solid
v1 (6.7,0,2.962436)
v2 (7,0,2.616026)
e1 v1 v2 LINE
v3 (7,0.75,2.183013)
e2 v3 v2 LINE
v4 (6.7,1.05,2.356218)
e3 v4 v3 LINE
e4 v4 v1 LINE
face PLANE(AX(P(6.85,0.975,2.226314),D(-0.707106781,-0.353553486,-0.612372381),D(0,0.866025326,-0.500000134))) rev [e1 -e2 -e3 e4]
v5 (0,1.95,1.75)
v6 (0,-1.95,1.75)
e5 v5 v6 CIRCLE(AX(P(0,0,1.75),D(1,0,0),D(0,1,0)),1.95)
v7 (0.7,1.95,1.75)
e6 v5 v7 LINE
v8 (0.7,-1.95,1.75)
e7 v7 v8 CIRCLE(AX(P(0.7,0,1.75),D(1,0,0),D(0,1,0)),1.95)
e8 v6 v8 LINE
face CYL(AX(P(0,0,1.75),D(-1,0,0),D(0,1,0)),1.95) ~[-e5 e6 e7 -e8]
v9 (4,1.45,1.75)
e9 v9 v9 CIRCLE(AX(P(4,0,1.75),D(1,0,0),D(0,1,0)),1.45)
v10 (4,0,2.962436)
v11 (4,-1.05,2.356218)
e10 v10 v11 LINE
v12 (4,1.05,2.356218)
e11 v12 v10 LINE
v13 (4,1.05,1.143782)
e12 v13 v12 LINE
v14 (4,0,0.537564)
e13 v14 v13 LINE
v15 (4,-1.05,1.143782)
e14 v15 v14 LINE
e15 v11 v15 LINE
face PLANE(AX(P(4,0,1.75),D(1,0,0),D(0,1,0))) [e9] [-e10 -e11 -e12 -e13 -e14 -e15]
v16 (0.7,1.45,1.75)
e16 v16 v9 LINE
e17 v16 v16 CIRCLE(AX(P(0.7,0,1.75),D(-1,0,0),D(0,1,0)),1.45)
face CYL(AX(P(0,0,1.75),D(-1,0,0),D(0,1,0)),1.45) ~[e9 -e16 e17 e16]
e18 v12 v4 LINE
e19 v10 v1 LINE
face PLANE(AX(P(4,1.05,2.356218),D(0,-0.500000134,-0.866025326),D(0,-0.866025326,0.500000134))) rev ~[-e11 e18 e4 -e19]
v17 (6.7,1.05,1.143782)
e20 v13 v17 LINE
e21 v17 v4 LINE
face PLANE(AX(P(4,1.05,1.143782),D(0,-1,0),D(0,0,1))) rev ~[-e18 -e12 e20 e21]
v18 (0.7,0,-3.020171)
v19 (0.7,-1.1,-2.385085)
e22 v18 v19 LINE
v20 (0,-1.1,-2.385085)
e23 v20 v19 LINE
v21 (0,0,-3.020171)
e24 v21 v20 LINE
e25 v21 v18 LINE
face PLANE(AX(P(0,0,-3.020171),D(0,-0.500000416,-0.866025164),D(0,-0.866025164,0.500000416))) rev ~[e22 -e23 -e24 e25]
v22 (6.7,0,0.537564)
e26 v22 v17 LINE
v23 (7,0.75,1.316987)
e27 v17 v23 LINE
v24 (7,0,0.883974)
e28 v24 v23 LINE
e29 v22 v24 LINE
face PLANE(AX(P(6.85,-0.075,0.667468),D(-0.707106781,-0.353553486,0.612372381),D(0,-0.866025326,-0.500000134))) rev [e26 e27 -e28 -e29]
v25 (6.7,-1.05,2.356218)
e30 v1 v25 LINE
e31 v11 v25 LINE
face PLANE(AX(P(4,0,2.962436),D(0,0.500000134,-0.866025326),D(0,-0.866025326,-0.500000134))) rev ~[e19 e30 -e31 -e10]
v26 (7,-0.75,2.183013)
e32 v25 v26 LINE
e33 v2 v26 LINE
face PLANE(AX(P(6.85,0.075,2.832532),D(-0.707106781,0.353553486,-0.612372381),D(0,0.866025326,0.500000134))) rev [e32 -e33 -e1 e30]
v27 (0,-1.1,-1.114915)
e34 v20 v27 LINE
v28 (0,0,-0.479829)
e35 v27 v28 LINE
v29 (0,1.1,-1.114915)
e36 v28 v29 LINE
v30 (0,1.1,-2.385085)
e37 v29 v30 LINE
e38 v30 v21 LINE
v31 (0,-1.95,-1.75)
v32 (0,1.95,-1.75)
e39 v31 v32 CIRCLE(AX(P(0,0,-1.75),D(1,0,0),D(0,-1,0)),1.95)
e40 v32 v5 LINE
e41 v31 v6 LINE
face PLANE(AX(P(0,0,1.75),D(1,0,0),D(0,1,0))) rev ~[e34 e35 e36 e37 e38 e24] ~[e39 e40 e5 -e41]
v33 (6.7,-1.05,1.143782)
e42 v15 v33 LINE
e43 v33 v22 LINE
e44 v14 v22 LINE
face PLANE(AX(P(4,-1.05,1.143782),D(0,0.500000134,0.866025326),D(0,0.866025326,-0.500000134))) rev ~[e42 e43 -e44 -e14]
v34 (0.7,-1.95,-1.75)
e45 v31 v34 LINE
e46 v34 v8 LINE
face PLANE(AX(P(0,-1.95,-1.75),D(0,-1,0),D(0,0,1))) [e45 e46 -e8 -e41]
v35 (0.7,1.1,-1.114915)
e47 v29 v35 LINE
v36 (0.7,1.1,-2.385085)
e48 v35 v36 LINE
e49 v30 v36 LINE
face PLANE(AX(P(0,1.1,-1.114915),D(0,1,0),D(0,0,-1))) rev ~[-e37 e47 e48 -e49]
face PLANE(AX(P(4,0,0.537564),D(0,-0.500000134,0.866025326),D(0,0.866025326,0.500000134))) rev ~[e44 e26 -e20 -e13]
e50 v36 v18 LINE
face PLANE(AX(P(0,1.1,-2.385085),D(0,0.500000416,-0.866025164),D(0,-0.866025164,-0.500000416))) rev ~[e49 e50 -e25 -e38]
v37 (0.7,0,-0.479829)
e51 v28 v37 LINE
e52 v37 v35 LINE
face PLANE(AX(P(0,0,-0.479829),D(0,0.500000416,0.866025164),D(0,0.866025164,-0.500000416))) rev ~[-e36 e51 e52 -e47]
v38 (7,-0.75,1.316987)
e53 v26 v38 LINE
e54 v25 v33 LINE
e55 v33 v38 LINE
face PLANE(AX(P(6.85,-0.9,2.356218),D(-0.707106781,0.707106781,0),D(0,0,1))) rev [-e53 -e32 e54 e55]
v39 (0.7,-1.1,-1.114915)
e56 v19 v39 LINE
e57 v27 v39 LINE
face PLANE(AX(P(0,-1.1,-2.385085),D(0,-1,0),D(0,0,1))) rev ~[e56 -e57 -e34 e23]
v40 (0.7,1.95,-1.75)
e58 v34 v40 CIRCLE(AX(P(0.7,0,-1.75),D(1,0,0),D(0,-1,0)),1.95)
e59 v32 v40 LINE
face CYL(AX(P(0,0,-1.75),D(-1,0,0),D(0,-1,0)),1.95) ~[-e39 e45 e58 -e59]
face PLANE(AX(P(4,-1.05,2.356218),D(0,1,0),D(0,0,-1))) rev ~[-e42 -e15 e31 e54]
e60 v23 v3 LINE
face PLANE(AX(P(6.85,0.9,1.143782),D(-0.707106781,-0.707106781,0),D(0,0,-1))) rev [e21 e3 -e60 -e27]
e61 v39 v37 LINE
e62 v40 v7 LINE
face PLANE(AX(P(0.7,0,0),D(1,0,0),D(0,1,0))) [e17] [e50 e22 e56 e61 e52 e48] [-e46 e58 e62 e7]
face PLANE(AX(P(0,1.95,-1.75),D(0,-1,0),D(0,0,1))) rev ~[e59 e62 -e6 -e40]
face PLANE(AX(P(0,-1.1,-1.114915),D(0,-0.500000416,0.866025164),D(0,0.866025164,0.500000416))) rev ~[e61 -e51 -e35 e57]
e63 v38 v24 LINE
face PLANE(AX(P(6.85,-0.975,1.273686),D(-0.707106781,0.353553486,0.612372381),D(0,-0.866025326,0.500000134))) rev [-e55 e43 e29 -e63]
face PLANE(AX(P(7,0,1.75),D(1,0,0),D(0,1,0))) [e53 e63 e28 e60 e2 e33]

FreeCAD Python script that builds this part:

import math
import FreeCAD as App
import Part
import Sketcher

V = App.Vector
Q = App.Units.Quantity


def edges_at(feature, points):
    """Names of the edges that pass closest to the given points."""
    edges = feature.Shape.Edges
    near = lambda p: min(range(len(edges)), key=lambda i: edges[i].distToShape(Part.Vertex(*p))[0])
    return sorted({f"Edge{near(p) + 1}" for p in points})


def add_polygon(sketch, points):
    """Adds a closed chain of lines whose ends are joined by coincident constraints."""
    first, n = sketch.GeometryCount, len(points)
    for a, b in zip(points, points[1:] + points[:1]):
        sketch.addGeometry(Part.LineSegment(App.Vector(*a, 0), App.Vector(*b, 0)), False)
    for i in range(n):
        sketch.addConstraint(Sketcher.Constraint("Coincident", first + i, 2, first + (i + 1) % n, 1))

doc = App.newDocument("Part")
body = doc.addObject("PartDesign::Body", "Body")

sketch1 = doc.addObject("Sketcher::SketchObject", "Sketch")
body.addObject(sketch1)
sketch1.AttachmentSupport = (doc.YZ_Plane, [""])
sketch1.MapMode = "FlatFace"
sketch1.addGeometry([
    Part.LineSegment(V(-1.9, 1.8, 0), V(-1.9, -1.8, 0)),
    Part.ArcOfCircle(Part.Circle(V(0, -1.8, 0), V(0, 0, 1), 1.9), math.radians(180), math.radians(360)),
    Part.LineSegment(V(1.9, -1.8, 0), V(1.9, 1.8, 0)),
    Part.ArcOfCircle(Part.Circle(V(0, 1.8, 0), V(0, 0, 1), 1.9), math.radians(0), math.radians(180)),
], False)
sketch1.addConstraint([
    Sketcher.Constraint("Tangent", 0, 2, 1, 1),
    Sketcher.Constraint("Tangent", 1, 2, 2, 1),
    Sketcher.Constraint("Tangent", 2, 2, 3, 1),
    Sketcher.Constraint("Tangent", 3, 2, 0, 1),
    Sketcher.Constraint("Vertical", 0),
    Sketcher.Constraint("Vertical", 2),
    Sketcher.Constraint("Symmetric", 1, 3, 3, 3, -1, 1),
    Sketcher.Constraint("Radius", 1, Q("1.95 mm")),
    Sketcher.Constraint("DistanceY", 0, 2, 0, 1, Q("3.5 mm")),
])
pad1 = doc.addObject("PartDesign::Pad", "Pad")
body.addObject(pad1)
pad1.Profile = sketch1
pad1.Length = 0.7

sketch2 = doc.addObject("Sketcher::SketchObject", "Sketch001")
body.addObject(sketch2)
sketch2.AttachmentSupport = (doc.YZ_Plane, [""])
sketch2.MapMode = "FlatFace"
sketch2.addGeometry(Part.Circle(V(0, 1.8, 0), V(0, 0, 1), 1.4), False)
sketch2.addConstraint([
    Sketcher.Constraint("PointOnObject", 0, 3, -2),
    Sketcher.Constraint("Diameter", 0, Q("2.9 mm")),
    Sketcher.Constraint("DistanceY", -1, 1, 0, 3, Q("1.75 mm")),
])
pad2 = doc.addObject("PartDesign::Pad", "Pad001")
body.addObject(pad2)
pad2.Profile = sketch2
pad2.Length = 4

sketch3 = doc.addObject("Sketcher::SketchObject", "Sketch002")
body.addObject(sketch3)
sketch3.AttachmentSupport = (doc.YZ_Plane, [""])
sketch3.MapMode = "FlatFace"
sketch3.AttachmentOffset = App.Placement(V(0, 0, 4), App.Rotation())
add_polygon(sketch3, [(1.1, 1.1), (1.1, 2.4), (0, 3), (-1.1, 2.4), (-1.1, 1.1), (0, 0.5)])
sketch3.addConstraint([
    Sketcher.Constraint("Vertical", 0),
    Sketcher.Constraint("Vertical", 3),
    Sketcher.Constraint("Symmetric", 0, 2, 2, 2, -2),
    Sketcher.Constraint("PointOnObject", 1, 2, -2),
    Sketcher.Constraint("PointOnObject", 4, 2, -2),
    Sketcher.Constraint("Parallel", 1, 4),
    Sketcher.Constraint("Parallel", 2, 5),
    Sketcher.Constraint("Angle", 1, Q("149.999991 deg")),
    Sketcher.Constraint("DistanceX", 2, 2, 0, 2, Q("2.1 mm")),
    Sketcher.Constraint("DistanceY", 0, 1, 0, 2, Q("1.212436 mm")),
    Sketcher.Constraint("DistanceY", -1, 1, 0, 2, Q("2.356218 mm")),
])
pad3 = doc.addObject("PartDesign::Pad", "Pad002")
body.addObject(pad3)
pad3.Profile = sketch3
pad3.Length = 3
doc.recompute()

chamfer = doc.addObject("PartDesign::Chamfer", "Chamfer")
body.addObject(chamfer)
chamfer.Base = (pad3, edges_at(pad3, [
    (7, -0.525, 2.659),
    (7, 0.525, 2.659),
    (7, 1.05, 1.75),
    (7, 0.525, 0.841),
    (7, -0.525, 0.841),
    (7, -1.05, 1.75),
]))
chamfer.Size = 0.3

sketch4 = doc.addObject("Sketcher::SketchObject", "Sketch003")
body.addObject(sketch4)
sketch4.AttachmentSupport = (doc.YZ_Plane, [""])
sketch4.MapMode = "FlatFace"
add_polygon(sketch4, [(-1.1, -2.4), (-1.1, -1.1), (0, -0.5), (1.1, -1.1), (1.1, -2.4), (0, -3)])
sketch4.addConstraint([
    Sketcher.Constraint("Vertical", 0),
    Sketcher.Constraint("Vertical", 3),
    Sketcher.Constraint("Symmetric", 0, 2, 2, 2, -2),
    Sketcher.Constraint("PointOnObject", 1, 2, -2),
    Sketcher.Constraint("PointOnObject", 4, 2, -2),
    Sketcher.Constraint("Parallel", 1, 4),
    Sketcher.Constraint("Parallel", 2, 5),
    Sketcher.Constraint("DistanceX", 0, 2, -1, 1, Q("1.1 mm")),
    Sketcher.Constraint("DistanceY", 0, 1, 0, 2, Q("1.27017 mm")),
    Sketcher.Constraint("Distance", 1, Q("1.270171 mm")),
    Sketcher.Constraint("DistanceY", 1, 2, -1, 1, Q("0.479829 mm")),
])
pocket1 = doc.addObject("PartDesign::Pocket", "Pocket")
body.addObject(pocket1)
pocket1.Profile = sketch4
pocket1.Type = "ThroughAll"
pocket1.Reversed = True

doc.recompute()
